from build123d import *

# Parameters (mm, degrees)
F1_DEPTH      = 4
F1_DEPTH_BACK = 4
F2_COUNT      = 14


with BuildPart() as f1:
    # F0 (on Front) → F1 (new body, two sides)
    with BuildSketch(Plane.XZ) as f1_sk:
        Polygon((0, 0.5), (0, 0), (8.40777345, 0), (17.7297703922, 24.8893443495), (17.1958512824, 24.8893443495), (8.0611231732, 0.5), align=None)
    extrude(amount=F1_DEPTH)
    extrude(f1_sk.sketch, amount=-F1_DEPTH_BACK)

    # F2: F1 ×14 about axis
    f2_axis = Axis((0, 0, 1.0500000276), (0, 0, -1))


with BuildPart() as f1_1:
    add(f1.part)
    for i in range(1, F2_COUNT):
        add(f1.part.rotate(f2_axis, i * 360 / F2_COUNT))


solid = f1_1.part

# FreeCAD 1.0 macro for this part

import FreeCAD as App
import Part
import Sketcher
from FreeCAD import Vector
Q = App.Units.Quantity

doc = App.newDocument("Part")
params = doc.addObject("Spreadsheet::Sheet", "Params")
for row, (alias, value) in enumerate([
    ("sketch1_height", "0.5 mm"),
    ("pad1_length", "4 mm"),
    ("pad1_length2", "4 mm"),
], start=1):
    params.set(f"A{row}", alias)
    params.set(f"B{row}", "=" + value)
    params.setAlias(f"B{row}", alias)

body = doc.addObject("PartDesign::Body", "Body")

# Sketch on XZ plane
sketch1 = doc.addObject("Sketcher::SketchObject", "Sketch")
body.addObject(sketch1)
sketch1.AttachmentSupport = (doc.XZ_Plane, [""])
sketch1.MapMode = "FlatFace"
sketch1.addGeometry([
    Part.LineSegment(Vector(0, 0.5, 0), Vector(0, 0, 0)),  # 0
    Part.LineSegment(Vector(0, 0, 0), Vector(8.407773, 0, 0)),  # 1
    Part.LineSegment(Vector(8.407773, 0, 0), Vector(17.72977, 24.889344, 0)),  # 2
    Part.LineSegment(Vector(17.72977, 24.889344, 0), Vector(17.195851, 24.889344, 0)),  # 3
    Part.LineSegment(Vector(17.195851, 24.889344, 0), Vector(8.061123, 0.5, 0)),  # 4
    Part.LineSegment(Vector(8.061123, 0.5, 0), Vector(0, 0.5, 0)),  # 5
], False)
sketch1.addConstraint([
    Sketcher.Constraint("Coincident", 0, 2, 1, 1),
    Sketcher.Constraint("Coincident", 1, 2, 2, 1),
    Sketcher.Constraint("Coincident", 2, 2, 3, 1),
    Sketcher.Constraint("Coincident", 3, 2, 4, 1),
    Sketcher.Constraint("Coincident", 4, 2, 5, 1),
    Sketcher.Constraint("Coincident", 5, 2, 0, 1),
    Sketcher.Constraint("Vertical", 0),
    Sketcher.Constraint("Horizontal", 1),
    Sketcher.Constraint("Horizontal", 3),
    Sketcher.Constraint("Horizontal", 5),
    Sketcher.Constraint("Coincident", 0, 2, -1, 1),
    Sketcher.Constraint("Parallel", 2, 4),
    Sketcher.Constraint("DistanceY", 0, 2, 0, 1, Q("0.5 mm")),
    Sketcher.Constraint("DistanceX", 3, 2, 3, 1, Q("0.533919 mm")),
    Sketcher.Constraint("DistanceX", 1, 1, 1, 2, Q("8.407773 mm")),
    Sketcher.Constraint("DistanceX", 5, 2, 5, 1, Q("8.061123 mm")),
    Sketcher.Constraint("DistanceX", -1, 1, 2, 2, Q("17.72977 mm")),
])
sketch1.setExpression("Constraints[12]", "Params.sketch1_height")
pad1 = doc.addObject("PartDesign::Pad", "Pad")
body.addObject(pad1)
pad1.Profile = sketch1
pad1.Type = "TwoLengths"
pad1.setExpression("Length", "Params.pad1_length")
pad1.setExpression("Length2", "Params.pad1_length2")
body2 = doc.addObject("PartDesign::Body", "Body001")
doc.recompute()

body2.BaseFeature = body
doc.recompute()

body3 = doc.addObject("PartDesign::Body", "Body002")
body3.BaseFeature = body
body3.Placement = App.Placement(Vector(0, 0, 0), App.Rotation(Vector(0, 0, -1), 25.714286))
boolean = doc.addObject("PartDesign::Boolean", "Boolean")
body2.addObject(boolean)
boolean.Type = "Fuse"
boolean.addObjects([body3])
doc.recompute()

body4 = doc.addObject("PartDesign::Body", "Body003")
body4.BaseFeature = body
body4.Placement = App.Placement(Vector(0, 0, 0), App.Rotation(Vector(0, 0, -1), 51.428571))
boolean2 = doc.addObject("PartDesign::Boolean", "Boolean001")
body2.addObject(boolean2)
boolean2.Type = "Fuse"
boolean2.addObjects([body4])
doc.recompute()

body5 = doc.addObject("PartDesign::Body", "Body004")
body5.BaseFeature = body
body5.Placement = App.Placement(Vector(0, 0, 0), App.Rotation(Vector(0, 0, -1), 77.142857))
boolean3 = doc.addObject("PartDesign::Boolean", "Boolean002")
body2.addObject(boolean3)
boolean3.Type = "Fuse"
boolean3.addObjects([body5])
doc.recompute()

body6 = doc.addObject("PartDesign::Body", "Body005")
body6.BaseFeature = body
body6.Placement = App.Placement(Vector(0, 0, 0), App.Rotation(Vector(0, 0, -1), 102.857143))
boolean4 = doc.addObject("PartDesign::Boolean", "Boolean003")
body2.addObject(boolean4)
boolean4.Type = "Fuse"
boolean4.addObjects([body6])
doc.recompute()

body7 = doc.addObject("PartDesign::Body", "Body006")
body7.BaseFeature = body
body7.Placement = App.Placement(Vector(0, 0, 0), App.Rotation(Vector(0, 0, -1), 128.571429))
boolean5 = doc.addObject("PartDesign::Boolean", "Boolean004")
body2.addObject(boolean5)
boolean5.Type = "Fuse"
boolean5.addObjects([body7])
doc.recompute()

body8 = doc.addObject("PartDesign::Body", "Body007")
body8.BaseFeature = body
body8.Placement = App.Placement(Vector(0, 0, 0), App.Rotation(Vector(0, 0, -1), 154.285714))
boolean6 = doc.addObject("PartDesign::Boolean", "Boolean005")
body2.addObject(boolean6)
boolean6.Type = "Fuse"
boolean6.addObjects([body8])
doc.recompute()

body9 = doc.addObject("PartDesign::Body", "Body008")
body9.BaseFeature = body
body9.Placement = App.Placement(Vector(0, 0, 0), App.Rotation(Vector(0, 0, -1), 180))
boolean7 = doc.addObject("PartDesign::Boolean", "Boolean006")
body2.addObject(boolean7)
boolean7.Type = "Fuse"
boolean7.addObjects([body9])
doc.recompute()

body10 = doc.addObject("PartDesign::Body", "Body009")
body10.BaseFeature = body
body10.Placement = App.Placement(Vector(0, 0, 0), App.Rotation(Vector(0, 0, -1), 205.714286))
boolean8 = doc.addObject("PartDesign::Boolean", "Boolean007")
body2.addObject(boolean8)
boolean8.Type = "Fuse"
boolean8.addObjects([body10])
doc.recompute()

body11 = doc.addObject("PartDesign::Body", "Body010")
body11.BaseFeature = body
body11.Placement = App.Placement(Vector(0, 0, 0), App.Rotation(Vector(0, 0, -1), 231.428571))
boolean9 = doc.addObject("PartDesign::Boolean", "Boolean008")
body2.addObject(boolean9)
boolean9.Type = "Fuse"
boolean9.addObjects([body11])
doc.recompute()

body12 = doc.addObject("PartDesign::Body", "Body011")
body12.BaseFeature = body
body12.Placement = App.Placement(Vector(0, 0, 0), App.Rotation(Vector(0, 0, -1), 257.142857))
boolean10 = doc.addObject("PartDesign::Boolean", "Boolean009")
body2.addObject(boolean10)
boolean10.Type = "Fuse"
boolean10.addObjects([body12])
doc.recompute()

body13 = doc.addObject("PartDesign::Body", "Body012")
body13.BaseFeature = body
body13.Placement = App.Placement(Vector(0, 0, 0), App.Rotation(Vector(0, 0, -1), 282.857143))
boolean11 = doc.addObject("PartDesign::Boolean", "Boolean010")
body2.addObject(boolean11)
boolean11.Type = "Fuse"
boolean11.addObjects([body13])
doc.recompute()

body14 = doc.addObject("PartDesign::Body", "Body013")
body14.BaseFeature = body
body14.Placement = App.Placement(Vector(0, 0, 0), App.Rotation(Vector(0, 0, -1), 308.571429))
boolean12 = doc.addObject("PartDesign::Boolean", "Boolean011")
body2.addObject(boolean12)
boolean12.Type = "Fuse"
boolean12.addObjects([body14])
doc.recompute()

body.Placement = App.Placement(Vector(0, 0, 0), App.Rotation(Vector(0, 0, -1), 334.285714))
boolean13 = doc.addObject("PartDesign::Boolean", "Boolean012")
body2.addObject(boolean13)
boolean13.Type = "Fuse"
boolean13.addObjects([body])

doc.recompute()
